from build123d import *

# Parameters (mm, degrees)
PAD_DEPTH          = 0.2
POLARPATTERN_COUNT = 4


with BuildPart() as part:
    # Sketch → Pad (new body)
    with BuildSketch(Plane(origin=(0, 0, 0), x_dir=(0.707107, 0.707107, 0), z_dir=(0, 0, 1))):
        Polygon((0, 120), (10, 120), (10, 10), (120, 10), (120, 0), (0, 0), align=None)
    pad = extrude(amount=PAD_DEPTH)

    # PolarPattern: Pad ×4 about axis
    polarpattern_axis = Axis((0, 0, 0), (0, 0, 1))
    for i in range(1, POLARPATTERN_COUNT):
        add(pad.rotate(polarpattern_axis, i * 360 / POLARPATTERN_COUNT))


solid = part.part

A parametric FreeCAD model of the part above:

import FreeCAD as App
import Part
import Sketcher

V = App.Vector


def add_polygon(sketch, points):
    """Adds a closed chain of lines whose ends are joined by coincident constraints."""
    first, n = sketch.GeometryCount, len(points)
    for a, b in zip(points, points[1:] + points[:1]):
        sketch.addGeometry(Part.LineSegment(App.Vector(*a, 0), App.Vector(*b, 0)), False)
    for i in range(n):
        sketch.addConstraint(Sketcher.Constraint("Coincident", first + i, 2, first + (i + 1) % n, 1))

doc = App.newDocument("Part")
body = doc.addObject("PartDesign::Body", "Body")

# Sketch on XY plane
sketch1 = body.newObject("Sketcher::SketchObject", "Sketch")
sketch1.AttachmentSupport = (doc.getObject("XY_Plane"), [""])
sketch1.MapMode = "FlatFace"
add_polygon(sketch1, [(-78, 92), (-85, 85), (0, 0), (85, 85), (78, 92), (0, 14)])  # lines 0-5
sketch1.addConstraint([
    Sketcher.Constraint("Coincident", 1, 2, -1, 1),
    Sketcher.Constraint("Symmetric", 0, 2, 2, 2, -2),
    Sketcher.Constraint("Symmetric", 3, 2, 5, 2, -2),
    Sketcher.Constraint("PointOnObject", 4, 2, -2),
    Sketcher.Constraint("Perpendicular", 0, 1),
    Sketcher.Constraint("Perpendicular", 1, 2),
    Sketcher.Constraint("Perpendicular", 3, 4),
    Sketcher.Constraint("Distance", 0, 10.0),
    Sketcher.Constraint("Distance", 1, 120.0),
])
pad1 = body.newObject("PartDesign::Pad", "Pad")
pad1.Profile = sketch1
pad1.Length = 0.2
doc.recompute()

polarpattern = body.newObject("PartDesign::PolarPattern", "PolarPattern")
polarpattern.Originals = [pad1]
polarpattern.Axis = (doc.getObject("Z_Axis"), [""])
polarpattern.Angle = 360
polarpattern.Occurrences = 4
body.Tip = polarpattern

doc.recompute()
